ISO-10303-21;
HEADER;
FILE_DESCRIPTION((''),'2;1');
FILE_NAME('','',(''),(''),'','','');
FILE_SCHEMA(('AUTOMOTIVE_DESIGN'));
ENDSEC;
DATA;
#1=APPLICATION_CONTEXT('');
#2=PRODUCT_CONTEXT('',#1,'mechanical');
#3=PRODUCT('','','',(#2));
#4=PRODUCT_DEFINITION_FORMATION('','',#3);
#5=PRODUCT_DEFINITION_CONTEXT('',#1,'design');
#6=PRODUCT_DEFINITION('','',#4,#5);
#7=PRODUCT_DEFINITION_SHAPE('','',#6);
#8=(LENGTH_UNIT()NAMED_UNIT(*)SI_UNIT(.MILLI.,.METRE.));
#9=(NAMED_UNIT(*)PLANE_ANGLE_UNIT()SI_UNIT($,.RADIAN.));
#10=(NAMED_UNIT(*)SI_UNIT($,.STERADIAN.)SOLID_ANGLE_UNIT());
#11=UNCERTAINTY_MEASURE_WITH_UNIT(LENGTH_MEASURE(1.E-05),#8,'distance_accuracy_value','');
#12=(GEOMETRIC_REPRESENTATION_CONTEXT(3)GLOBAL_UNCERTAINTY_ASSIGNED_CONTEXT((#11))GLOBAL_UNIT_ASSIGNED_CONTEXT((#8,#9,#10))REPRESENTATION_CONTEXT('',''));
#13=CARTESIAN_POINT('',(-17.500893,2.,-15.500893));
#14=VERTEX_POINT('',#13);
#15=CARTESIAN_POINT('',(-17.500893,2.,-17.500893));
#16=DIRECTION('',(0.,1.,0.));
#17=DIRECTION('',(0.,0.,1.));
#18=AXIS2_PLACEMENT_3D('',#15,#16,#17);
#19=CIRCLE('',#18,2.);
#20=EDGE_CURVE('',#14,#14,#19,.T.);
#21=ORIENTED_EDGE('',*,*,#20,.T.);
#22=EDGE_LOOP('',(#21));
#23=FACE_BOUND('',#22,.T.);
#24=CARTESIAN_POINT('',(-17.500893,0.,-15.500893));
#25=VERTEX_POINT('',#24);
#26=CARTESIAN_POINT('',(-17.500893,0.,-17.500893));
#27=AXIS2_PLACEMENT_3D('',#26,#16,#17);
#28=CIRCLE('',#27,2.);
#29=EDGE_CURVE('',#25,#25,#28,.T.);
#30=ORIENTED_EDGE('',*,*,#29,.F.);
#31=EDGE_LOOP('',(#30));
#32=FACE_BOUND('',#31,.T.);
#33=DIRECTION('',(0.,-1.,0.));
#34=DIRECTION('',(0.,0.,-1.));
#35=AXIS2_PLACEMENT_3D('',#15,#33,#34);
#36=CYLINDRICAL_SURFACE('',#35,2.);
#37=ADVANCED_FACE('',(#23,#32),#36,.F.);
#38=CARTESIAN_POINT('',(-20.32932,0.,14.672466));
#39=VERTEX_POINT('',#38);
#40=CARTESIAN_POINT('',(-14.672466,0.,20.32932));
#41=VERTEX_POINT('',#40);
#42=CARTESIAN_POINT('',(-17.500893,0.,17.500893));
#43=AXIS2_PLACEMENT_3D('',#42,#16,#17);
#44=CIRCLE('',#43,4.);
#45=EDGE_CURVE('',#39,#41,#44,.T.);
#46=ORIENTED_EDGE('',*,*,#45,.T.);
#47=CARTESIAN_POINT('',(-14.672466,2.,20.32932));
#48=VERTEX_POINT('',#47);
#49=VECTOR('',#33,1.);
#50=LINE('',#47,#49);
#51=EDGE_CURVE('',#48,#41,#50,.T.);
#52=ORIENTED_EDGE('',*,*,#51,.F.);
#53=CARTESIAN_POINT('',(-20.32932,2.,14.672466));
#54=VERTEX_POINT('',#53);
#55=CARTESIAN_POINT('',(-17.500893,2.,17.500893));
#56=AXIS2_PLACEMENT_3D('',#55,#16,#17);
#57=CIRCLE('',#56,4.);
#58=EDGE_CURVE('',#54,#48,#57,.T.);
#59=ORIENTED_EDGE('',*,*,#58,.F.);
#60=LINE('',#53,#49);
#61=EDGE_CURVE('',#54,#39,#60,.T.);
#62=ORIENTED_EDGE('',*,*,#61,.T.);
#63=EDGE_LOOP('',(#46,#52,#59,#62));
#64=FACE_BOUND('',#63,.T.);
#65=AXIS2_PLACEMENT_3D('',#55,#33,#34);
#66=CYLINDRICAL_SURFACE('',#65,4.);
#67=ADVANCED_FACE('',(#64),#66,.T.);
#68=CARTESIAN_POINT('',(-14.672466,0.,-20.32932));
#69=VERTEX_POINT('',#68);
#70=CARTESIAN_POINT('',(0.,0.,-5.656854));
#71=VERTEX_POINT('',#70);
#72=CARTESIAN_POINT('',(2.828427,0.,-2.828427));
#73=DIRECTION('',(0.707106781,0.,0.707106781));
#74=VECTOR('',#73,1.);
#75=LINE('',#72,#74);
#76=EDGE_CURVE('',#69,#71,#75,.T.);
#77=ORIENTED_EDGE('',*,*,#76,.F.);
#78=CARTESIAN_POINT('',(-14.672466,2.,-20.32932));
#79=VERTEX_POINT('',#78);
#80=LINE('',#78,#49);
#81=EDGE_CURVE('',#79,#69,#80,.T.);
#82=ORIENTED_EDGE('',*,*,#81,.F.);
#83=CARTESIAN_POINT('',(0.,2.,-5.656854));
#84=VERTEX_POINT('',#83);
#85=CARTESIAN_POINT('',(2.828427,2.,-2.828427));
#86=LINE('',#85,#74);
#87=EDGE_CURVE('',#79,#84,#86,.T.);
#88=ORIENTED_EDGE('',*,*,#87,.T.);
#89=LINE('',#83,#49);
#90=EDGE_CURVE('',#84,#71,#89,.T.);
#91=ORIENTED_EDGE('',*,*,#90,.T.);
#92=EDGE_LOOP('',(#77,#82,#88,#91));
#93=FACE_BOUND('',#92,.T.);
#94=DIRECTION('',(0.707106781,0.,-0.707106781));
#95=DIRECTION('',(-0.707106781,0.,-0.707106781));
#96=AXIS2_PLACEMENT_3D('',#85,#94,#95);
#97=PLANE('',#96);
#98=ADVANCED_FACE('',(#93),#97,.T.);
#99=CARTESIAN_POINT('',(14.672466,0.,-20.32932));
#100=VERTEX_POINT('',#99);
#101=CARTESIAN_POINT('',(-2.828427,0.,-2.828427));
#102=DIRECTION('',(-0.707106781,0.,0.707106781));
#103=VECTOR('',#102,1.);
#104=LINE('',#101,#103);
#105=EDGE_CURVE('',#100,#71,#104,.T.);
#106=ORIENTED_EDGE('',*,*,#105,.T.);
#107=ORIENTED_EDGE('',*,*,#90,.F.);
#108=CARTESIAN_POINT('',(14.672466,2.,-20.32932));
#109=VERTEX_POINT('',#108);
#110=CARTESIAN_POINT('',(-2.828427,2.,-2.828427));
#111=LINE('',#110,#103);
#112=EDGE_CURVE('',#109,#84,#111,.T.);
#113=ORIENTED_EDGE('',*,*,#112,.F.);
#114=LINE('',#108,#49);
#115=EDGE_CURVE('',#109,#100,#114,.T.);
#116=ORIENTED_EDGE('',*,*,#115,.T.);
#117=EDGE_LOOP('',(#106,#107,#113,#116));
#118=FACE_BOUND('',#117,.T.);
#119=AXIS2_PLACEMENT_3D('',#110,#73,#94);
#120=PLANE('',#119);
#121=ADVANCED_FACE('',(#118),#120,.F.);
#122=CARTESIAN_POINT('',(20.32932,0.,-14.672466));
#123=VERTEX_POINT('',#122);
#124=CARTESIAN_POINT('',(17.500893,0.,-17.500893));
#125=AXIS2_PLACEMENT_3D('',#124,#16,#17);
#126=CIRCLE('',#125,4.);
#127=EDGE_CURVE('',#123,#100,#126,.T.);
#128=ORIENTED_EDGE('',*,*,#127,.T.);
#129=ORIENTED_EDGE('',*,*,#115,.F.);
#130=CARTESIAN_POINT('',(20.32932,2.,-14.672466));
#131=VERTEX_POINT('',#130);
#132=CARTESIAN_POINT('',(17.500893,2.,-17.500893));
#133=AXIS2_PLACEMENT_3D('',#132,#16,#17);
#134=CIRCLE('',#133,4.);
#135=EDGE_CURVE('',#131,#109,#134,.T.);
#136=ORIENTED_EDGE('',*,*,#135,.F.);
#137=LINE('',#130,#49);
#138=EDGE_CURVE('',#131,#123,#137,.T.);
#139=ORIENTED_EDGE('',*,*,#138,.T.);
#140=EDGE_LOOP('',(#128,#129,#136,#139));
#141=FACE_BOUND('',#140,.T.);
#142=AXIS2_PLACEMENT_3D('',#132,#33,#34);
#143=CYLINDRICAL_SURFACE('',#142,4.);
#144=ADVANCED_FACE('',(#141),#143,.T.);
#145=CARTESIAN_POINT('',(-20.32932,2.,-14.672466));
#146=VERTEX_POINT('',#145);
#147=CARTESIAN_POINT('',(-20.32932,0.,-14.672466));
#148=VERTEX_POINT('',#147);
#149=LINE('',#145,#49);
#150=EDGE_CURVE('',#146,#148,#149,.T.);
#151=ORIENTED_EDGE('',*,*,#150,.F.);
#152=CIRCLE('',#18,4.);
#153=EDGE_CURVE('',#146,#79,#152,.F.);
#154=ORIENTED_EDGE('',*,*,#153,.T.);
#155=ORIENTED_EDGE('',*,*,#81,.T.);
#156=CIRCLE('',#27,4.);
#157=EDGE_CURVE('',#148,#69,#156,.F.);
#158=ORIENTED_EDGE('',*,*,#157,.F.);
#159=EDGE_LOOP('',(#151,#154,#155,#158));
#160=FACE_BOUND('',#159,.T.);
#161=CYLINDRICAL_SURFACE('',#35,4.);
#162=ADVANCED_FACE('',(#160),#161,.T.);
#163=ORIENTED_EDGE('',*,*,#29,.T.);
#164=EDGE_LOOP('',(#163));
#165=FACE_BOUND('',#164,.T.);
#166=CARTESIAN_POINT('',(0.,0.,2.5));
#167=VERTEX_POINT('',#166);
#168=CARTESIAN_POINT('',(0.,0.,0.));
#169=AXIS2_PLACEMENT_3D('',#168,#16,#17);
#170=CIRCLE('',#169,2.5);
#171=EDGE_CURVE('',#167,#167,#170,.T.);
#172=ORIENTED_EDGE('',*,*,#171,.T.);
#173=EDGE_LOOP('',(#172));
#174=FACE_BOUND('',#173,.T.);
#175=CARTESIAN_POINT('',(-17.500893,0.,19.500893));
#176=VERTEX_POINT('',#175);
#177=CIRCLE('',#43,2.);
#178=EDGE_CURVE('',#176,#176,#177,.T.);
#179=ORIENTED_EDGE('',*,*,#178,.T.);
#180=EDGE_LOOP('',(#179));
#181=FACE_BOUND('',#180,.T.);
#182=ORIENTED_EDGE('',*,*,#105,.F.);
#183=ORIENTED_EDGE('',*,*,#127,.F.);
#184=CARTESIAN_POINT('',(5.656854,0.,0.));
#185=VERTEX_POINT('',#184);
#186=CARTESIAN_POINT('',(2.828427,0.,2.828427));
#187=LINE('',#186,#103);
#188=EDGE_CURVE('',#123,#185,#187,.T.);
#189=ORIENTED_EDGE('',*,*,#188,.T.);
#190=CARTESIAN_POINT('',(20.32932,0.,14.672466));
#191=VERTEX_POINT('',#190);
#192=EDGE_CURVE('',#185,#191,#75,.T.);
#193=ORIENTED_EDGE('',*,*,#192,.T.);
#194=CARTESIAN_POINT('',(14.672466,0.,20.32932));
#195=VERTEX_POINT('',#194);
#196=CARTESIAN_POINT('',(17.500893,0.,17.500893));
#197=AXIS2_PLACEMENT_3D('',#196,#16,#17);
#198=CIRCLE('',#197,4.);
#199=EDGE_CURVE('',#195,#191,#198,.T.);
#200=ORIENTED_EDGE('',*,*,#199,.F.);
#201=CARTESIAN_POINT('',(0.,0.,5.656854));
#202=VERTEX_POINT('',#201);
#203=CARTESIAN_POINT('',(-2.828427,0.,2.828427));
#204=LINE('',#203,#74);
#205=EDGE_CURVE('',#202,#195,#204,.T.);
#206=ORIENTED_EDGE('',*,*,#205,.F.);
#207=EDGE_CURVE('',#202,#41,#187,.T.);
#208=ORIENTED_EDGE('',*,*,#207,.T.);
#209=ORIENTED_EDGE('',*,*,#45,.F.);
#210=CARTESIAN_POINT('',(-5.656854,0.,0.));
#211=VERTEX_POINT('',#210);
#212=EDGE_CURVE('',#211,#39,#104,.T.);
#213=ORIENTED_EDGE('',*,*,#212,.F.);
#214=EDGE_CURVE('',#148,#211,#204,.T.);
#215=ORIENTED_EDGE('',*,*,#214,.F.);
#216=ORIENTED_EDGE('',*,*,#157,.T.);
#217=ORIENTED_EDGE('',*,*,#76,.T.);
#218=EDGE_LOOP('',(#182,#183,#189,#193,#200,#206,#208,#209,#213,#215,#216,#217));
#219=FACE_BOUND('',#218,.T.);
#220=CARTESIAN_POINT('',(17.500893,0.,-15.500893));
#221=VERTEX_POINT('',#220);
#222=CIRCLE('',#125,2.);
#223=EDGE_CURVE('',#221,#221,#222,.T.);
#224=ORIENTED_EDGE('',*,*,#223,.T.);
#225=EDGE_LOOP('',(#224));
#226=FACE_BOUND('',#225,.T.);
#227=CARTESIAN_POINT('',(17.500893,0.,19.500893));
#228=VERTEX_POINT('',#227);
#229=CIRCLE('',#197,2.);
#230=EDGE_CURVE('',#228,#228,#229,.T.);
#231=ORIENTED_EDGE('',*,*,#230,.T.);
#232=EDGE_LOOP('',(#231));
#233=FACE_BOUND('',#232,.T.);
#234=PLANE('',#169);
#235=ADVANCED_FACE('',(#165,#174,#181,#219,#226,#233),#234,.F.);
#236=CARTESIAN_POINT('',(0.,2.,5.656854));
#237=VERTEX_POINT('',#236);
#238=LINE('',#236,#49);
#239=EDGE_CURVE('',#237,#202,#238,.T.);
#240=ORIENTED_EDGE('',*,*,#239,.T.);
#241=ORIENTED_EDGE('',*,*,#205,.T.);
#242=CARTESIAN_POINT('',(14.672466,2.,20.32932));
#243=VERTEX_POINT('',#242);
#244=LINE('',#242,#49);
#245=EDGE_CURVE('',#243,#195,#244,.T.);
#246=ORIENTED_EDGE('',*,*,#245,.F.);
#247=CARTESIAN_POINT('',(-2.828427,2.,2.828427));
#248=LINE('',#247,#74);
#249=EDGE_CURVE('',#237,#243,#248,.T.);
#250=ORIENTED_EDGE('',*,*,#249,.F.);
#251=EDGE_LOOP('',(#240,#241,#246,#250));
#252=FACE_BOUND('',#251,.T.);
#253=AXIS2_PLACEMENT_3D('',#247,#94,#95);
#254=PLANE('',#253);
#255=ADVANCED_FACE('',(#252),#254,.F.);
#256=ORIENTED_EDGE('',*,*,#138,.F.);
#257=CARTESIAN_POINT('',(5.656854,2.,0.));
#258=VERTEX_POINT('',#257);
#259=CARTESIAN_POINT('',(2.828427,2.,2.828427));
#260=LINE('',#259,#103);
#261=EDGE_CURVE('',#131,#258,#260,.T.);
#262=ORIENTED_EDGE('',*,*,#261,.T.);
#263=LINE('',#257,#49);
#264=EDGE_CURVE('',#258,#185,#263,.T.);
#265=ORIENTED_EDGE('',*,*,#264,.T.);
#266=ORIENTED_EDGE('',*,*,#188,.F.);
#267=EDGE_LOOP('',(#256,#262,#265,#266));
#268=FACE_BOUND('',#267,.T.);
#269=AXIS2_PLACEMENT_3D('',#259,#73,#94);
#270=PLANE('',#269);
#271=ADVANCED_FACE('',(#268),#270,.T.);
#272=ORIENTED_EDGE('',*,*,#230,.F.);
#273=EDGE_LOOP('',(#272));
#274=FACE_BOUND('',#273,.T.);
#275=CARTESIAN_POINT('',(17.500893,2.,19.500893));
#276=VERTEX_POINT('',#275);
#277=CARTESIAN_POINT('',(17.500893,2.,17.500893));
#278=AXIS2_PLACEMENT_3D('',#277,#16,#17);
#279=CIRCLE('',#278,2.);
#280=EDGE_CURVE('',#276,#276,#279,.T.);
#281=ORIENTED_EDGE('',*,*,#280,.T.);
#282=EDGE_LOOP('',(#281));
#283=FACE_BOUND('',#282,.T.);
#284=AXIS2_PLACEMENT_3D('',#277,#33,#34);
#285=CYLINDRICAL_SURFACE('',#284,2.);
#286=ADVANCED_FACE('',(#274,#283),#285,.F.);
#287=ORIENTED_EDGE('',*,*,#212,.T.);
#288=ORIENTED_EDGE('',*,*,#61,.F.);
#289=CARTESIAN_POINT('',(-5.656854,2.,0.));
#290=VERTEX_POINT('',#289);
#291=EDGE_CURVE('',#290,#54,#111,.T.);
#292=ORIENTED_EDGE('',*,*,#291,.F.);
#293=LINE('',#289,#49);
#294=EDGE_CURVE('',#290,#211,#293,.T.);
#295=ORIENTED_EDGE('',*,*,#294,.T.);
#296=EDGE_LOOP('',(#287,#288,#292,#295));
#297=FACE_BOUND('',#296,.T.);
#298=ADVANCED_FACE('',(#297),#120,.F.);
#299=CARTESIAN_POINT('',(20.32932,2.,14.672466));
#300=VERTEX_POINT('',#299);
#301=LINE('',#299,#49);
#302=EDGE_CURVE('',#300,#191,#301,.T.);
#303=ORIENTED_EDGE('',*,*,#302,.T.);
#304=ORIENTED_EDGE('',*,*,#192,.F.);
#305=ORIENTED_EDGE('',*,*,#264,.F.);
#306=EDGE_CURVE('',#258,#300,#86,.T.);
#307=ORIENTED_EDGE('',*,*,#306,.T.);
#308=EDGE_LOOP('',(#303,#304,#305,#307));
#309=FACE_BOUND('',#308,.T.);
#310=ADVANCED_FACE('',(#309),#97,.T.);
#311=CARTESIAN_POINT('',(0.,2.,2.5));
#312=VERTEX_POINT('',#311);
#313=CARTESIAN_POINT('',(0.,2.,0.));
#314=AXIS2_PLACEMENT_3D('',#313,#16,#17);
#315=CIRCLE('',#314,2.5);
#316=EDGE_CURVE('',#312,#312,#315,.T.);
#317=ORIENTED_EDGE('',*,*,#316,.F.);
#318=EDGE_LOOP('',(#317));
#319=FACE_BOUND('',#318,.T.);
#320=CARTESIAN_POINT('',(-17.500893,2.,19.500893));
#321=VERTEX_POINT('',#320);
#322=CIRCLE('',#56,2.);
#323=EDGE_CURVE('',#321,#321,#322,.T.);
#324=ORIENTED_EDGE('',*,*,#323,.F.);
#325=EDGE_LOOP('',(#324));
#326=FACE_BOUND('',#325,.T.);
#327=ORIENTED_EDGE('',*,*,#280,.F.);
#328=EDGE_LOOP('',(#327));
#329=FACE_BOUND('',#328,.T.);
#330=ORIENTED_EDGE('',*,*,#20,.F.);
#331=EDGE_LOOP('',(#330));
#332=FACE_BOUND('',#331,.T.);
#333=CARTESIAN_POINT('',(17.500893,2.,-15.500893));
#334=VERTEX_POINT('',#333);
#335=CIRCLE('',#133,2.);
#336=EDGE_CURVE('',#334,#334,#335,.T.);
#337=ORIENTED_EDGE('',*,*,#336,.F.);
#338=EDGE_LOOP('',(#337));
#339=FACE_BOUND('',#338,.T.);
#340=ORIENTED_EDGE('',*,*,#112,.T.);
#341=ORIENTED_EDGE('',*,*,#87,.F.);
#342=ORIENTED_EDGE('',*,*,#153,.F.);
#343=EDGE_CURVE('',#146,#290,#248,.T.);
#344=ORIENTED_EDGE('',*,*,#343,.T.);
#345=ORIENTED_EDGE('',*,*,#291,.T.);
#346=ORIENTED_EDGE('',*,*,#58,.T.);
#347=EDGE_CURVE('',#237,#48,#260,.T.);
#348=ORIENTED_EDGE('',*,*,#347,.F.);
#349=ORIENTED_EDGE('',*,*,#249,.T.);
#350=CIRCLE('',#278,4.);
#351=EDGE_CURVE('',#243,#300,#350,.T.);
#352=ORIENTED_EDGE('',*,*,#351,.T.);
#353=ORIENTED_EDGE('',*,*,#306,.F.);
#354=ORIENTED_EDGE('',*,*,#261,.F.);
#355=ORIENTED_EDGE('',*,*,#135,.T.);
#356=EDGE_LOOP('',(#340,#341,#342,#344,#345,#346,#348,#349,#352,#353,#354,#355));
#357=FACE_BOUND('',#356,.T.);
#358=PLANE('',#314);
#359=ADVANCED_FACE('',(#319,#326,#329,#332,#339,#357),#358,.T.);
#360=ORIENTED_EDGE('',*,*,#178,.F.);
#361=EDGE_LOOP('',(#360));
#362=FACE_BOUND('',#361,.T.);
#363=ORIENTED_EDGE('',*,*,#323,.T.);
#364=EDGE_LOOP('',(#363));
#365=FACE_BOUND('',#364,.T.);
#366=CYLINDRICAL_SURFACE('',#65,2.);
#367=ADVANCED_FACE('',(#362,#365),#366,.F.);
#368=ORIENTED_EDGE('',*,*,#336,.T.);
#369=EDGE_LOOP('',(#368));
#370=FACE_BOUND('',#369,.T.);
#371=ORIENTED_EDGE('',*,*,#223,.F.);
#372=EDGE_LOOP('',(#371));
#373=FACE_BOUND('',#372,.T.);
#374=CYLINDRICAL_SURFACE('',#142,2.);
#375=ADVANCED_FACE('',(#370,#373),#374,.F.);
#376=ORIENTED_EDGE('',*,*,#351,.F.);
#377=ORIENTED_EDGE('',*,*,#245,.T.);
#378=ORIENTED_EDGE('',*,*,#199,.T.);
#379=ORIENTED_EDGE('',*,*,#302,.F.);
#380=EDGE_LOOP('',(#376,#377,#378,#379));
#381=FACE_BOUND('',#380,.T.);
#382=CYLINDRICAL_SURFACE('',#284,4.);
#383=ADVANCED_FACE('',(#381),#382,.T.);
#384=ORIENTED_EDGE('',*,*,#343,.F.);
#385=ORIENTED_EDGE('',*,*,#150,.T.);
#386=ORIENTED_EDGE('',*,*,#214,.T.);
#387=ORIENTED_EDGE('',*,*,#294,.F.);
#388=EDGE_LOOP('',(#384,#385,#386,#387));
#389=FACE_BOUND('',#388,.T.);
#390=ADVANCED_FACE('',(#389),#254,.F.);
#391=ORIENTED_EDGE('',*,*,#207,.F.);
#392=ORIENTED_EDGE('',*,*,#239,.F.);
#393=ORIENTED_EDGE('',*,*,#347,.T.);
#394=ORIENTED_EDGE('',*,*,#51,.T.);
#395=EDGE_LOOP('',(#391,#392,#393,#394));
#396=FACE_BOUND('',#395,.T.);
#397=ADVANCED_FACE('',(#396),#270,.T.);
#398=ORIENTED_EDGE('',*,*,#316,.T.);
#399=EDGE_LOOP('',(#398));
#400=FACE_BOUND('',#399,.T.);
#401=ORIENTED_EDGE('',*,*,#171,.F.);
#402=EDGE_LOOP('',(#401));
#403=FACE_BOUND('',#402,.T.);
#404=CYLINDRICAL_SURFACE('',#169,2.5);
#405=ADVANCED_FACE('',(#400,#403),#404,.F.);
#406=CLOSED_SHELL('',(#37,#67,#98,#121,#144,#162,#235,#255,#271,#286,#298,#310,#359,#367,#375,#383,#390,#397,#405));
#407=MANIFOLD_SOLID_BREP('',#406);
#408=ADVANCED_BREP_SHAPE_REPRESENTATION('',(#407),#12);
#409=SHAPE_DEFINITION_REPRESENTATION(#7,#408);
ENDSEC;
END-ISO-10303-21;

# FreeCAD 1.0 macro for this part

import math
import FreeCAD as App
import Part
import Sketcher
from FreeCAD import Vector

doc = App.newDocument("Part")
body = doc.addObject("PartDesign::Body", "Body")

# Sketch on XZ plane
sketch1 = body.newObject("Sketcher::SketchObject", "Sketch")
sketch1.AttachmentSupport = (doc.getObject("XZ_Plane"), [""])
sketch1.MapMode = "FlatFace"
sketch1.addGeometry(Part.LineSegment(Vector(-5.656854, 0, 0), Vector(-20.32932, 14.672466, 0)), False)
sketch1.addGeometry(Part.ArcOfCircle(Part.Circle(Vector(-17.500893, 17.500893, 0), Vector(0, 0, 1), 4), math.radians(45), math.radians(225)), False)
sketch1.addGeometry(Part.LineSegment(Vector(-14.672466, 20.32932, 0), Vector(0, 5.656854, 0)), False)
sketch1.addGeometry(Part.LineSegment(Vector(0, 5.656854, 0), Vector(14.672466, 20.32932, 0)), False)
sketch1.addGeometry(Part.ArcOfCircle(Part.Circle(Vector(17.500893, 17.500893, 0), Vector(0, 0, 1), 4), math.radians(-45), math.radians(135)), False)
sketch1.addGeometry(Part.LineSegment(Vector(20.32932, 14.672466, 0), Vector(5.656854, 0, 0)), False)
sketch1.addGeometry(Part.LineSegment(Vector(5.656854, 0, 0), Vector(20.32932, -14.672466, 0)), False)
sketch1.addGeometry(Part.ArcOfCircle(Part.Circle(Vector(17.500893, -17.500893, 0), Vector(0, 0, 1), 4), math.radians(-135), math.radians(45)), False)
sketch1.addGeometry(Part.LineSegment(Vector(14.672466, -20.32932, 0), Vector(0, -5.656854, 0)), False)
sketch1.addGeometry(Part.LineSegment(Vector(0, -5.656854, 0), Vector(-14.672466, -20.32932, 0)), False)
sketch1.addGeometry(Part.ArcOfCircle(Part.Circle(Vector(-17.500893, -17.500893, 0), Vector(0, 0, 1), 4), math.radians(135), math.radians(315)), False)
sketch1.addGeometry(Part.LineSegment(Vector(-20.32932, -14.672466, 0), Vector(-5.656854, 0, 0)), False)
sketch1.addGeometry(Part.Circle(Vector(-17.500893, 17.500893, 0), Vector(0, 0, 1), 2), False)
sketch1.addGeometry(Part.Circle(Vector(17.500893, 17.500893, 0), Vector(0, 0, 1), 2), False)
sketch1.addGeometry(Part.Circle(Vector(-17.500893, -17.500893, 0), Vector(0, 0, 1), 2), False)
sketch1.addGeometry(Part.Circle(Vector(17.500893, -17.500893, 0), Vector(0, 0, 1), 2), False)
sketch1.addConstraint(Sketcher.Constraint("Tangent", 0, 2, 1, 2))
sketch1.addConstraint(Sketcher.Constraint("Tangent", 1, 1, 2, 1))
sketch1.addConstraint(Sketcher.Constraint("Coincident", 2, 2, 3, 1))
sketch1.addConstraint(Sketcher.Constraint("Tangent", 3, 2, 4, 2))
sketch1.addConstraint(Sketcher.Constraint("Tangent", 4, 1, 5, 1))
sketch1.addConstraint(Sketcher.Constraint("Coincident", 5, 2, 6, 1))
sketch1.addConstraint(Sketcher.Constraint("Tangent", 6, 2, 7, 2))
sketch1.addConstraint(Sketcher.Constraint("Tangent", 7, 1, 8, 1))
sketch1.addConstraint(Sketcher.Constraint("Coincident", 8, 2, 9, 1))
sketch1.addConstraint(Sketcher.Constraint("Tangent", 9, 2, 10, 2))
sketch1.addConstraint(Sketcher.Constraint("Tangent", 10, 1, 11, 1))
sketch1.addConstraint(Sketcher.Constraint("Coincident", 11, 2, 0, 1))
sketch1.addConstraint(Sketcher.Constraint("Coincident", 12, 3, 1, 3))
sketch1.addConstraint(Sketcher.Constraint("Coincident", 13, 3, 4, 3))
sketch1.addConstraint(Sketcher.Constraint("Coincident", 14, 3, 10, 3))
sketch1.addConstraint(Sketcher.Constraint("Coincident", 15, 3, 7, 3))
sketch1.addConstraint(Sketcher.Constraint("Equal", 1, 4))
sketch1.addConstraint(Sketcher.Constraint("Equal", 4, 7))
sketch1.addConstraint(Sketcher.Constraint("Equal", 7, 10))
sketch1.addConstraint(Sketcher.Constraint("Equal", 12, 13))
sketch1.addConstraint(Sketcher.Constraint("Equal", 13, 14))
sketch1.addConstraint(Sketcher.Constraint("Equal", 14, 15))
sketch1.addConstraint(Sketcher.Constraint("Symmetric", 1, 3, 7, 3, -1, 1))
sketch1.addConstraint(Sketcher.Constraint("Symmetric", 4, 3, 10, 3, -1, 1))
sketch1.addConstraint(Sketcher.Constraint("Symmetric", 2, 2, 8, 2, -1, 1))
sketch1.addConstraint(Sketcher.Constraint("Symmetric", 5, 2, 11, 2, -1, 1))
sketch1.addConstraint(Sketcher.Constraint("Symmetric", 1, 3, 4, 3, -2))
sketch1.addConstraint(Sketcher.Constraint("PointOnObject", 2, 2, -2))
sketch1.addConstraint(Sketcher.Constraint("PointOnObject", 5, 2, -1))
sketch1.addConstraint(Sketcher.Constraint("Parallel", 0, 2))
sketch1.addConstraint(Sketcher.Constraint("Perpendicular", 2, 3))
sketch1.addConstraint(Sketcher.Constraint("Equal", 0, 2))
sketch1.addConstraint(Sketcher.Constraint("Diameter", 12, 4.0))
sketch1.addConstraint(Sketcher.Constraint("Radius", 1, 4.0))
sketch1.addConstraint(Sketcher.Constraint("Distance", 0, 20.75))
pad1 = body.newObject("PartDesign::Pad", "Pad")
pad1.Profile = sketch1
pad1.Length = 2
pad1.Reversed = True

# Sketch on XZ plane
sketch2 = body.newObject("Sketcher::SketchObject", "Sketch001")
sketch2.AttachmentSupport = (doc.getObject("XZ_Plane"), [""])
sketch2.MapMode = "FlatFace"
sketch2.AttachmentOffset = App.Placement(Vector(0, 0, -2), App.Rotation())
sketch2.addGeometry(Part.Circle(Vector(0, 0, 0), Vector(0, 0, 1), 2.5), False)
sketch2.addConstraint(Sketcher.Constraint("Coincident", 0, 3, -1, 1))
sketch2.addConstraint(Sketcher.Constraint("Diameter", 0, 5.0))
pocket1 = body.newObject("PartDesign::Pocket", "Pocket")
pocket1.Profile = sketch2
pocket1.Length = 2
pocket1.Reversed = True

doc.recompute()
